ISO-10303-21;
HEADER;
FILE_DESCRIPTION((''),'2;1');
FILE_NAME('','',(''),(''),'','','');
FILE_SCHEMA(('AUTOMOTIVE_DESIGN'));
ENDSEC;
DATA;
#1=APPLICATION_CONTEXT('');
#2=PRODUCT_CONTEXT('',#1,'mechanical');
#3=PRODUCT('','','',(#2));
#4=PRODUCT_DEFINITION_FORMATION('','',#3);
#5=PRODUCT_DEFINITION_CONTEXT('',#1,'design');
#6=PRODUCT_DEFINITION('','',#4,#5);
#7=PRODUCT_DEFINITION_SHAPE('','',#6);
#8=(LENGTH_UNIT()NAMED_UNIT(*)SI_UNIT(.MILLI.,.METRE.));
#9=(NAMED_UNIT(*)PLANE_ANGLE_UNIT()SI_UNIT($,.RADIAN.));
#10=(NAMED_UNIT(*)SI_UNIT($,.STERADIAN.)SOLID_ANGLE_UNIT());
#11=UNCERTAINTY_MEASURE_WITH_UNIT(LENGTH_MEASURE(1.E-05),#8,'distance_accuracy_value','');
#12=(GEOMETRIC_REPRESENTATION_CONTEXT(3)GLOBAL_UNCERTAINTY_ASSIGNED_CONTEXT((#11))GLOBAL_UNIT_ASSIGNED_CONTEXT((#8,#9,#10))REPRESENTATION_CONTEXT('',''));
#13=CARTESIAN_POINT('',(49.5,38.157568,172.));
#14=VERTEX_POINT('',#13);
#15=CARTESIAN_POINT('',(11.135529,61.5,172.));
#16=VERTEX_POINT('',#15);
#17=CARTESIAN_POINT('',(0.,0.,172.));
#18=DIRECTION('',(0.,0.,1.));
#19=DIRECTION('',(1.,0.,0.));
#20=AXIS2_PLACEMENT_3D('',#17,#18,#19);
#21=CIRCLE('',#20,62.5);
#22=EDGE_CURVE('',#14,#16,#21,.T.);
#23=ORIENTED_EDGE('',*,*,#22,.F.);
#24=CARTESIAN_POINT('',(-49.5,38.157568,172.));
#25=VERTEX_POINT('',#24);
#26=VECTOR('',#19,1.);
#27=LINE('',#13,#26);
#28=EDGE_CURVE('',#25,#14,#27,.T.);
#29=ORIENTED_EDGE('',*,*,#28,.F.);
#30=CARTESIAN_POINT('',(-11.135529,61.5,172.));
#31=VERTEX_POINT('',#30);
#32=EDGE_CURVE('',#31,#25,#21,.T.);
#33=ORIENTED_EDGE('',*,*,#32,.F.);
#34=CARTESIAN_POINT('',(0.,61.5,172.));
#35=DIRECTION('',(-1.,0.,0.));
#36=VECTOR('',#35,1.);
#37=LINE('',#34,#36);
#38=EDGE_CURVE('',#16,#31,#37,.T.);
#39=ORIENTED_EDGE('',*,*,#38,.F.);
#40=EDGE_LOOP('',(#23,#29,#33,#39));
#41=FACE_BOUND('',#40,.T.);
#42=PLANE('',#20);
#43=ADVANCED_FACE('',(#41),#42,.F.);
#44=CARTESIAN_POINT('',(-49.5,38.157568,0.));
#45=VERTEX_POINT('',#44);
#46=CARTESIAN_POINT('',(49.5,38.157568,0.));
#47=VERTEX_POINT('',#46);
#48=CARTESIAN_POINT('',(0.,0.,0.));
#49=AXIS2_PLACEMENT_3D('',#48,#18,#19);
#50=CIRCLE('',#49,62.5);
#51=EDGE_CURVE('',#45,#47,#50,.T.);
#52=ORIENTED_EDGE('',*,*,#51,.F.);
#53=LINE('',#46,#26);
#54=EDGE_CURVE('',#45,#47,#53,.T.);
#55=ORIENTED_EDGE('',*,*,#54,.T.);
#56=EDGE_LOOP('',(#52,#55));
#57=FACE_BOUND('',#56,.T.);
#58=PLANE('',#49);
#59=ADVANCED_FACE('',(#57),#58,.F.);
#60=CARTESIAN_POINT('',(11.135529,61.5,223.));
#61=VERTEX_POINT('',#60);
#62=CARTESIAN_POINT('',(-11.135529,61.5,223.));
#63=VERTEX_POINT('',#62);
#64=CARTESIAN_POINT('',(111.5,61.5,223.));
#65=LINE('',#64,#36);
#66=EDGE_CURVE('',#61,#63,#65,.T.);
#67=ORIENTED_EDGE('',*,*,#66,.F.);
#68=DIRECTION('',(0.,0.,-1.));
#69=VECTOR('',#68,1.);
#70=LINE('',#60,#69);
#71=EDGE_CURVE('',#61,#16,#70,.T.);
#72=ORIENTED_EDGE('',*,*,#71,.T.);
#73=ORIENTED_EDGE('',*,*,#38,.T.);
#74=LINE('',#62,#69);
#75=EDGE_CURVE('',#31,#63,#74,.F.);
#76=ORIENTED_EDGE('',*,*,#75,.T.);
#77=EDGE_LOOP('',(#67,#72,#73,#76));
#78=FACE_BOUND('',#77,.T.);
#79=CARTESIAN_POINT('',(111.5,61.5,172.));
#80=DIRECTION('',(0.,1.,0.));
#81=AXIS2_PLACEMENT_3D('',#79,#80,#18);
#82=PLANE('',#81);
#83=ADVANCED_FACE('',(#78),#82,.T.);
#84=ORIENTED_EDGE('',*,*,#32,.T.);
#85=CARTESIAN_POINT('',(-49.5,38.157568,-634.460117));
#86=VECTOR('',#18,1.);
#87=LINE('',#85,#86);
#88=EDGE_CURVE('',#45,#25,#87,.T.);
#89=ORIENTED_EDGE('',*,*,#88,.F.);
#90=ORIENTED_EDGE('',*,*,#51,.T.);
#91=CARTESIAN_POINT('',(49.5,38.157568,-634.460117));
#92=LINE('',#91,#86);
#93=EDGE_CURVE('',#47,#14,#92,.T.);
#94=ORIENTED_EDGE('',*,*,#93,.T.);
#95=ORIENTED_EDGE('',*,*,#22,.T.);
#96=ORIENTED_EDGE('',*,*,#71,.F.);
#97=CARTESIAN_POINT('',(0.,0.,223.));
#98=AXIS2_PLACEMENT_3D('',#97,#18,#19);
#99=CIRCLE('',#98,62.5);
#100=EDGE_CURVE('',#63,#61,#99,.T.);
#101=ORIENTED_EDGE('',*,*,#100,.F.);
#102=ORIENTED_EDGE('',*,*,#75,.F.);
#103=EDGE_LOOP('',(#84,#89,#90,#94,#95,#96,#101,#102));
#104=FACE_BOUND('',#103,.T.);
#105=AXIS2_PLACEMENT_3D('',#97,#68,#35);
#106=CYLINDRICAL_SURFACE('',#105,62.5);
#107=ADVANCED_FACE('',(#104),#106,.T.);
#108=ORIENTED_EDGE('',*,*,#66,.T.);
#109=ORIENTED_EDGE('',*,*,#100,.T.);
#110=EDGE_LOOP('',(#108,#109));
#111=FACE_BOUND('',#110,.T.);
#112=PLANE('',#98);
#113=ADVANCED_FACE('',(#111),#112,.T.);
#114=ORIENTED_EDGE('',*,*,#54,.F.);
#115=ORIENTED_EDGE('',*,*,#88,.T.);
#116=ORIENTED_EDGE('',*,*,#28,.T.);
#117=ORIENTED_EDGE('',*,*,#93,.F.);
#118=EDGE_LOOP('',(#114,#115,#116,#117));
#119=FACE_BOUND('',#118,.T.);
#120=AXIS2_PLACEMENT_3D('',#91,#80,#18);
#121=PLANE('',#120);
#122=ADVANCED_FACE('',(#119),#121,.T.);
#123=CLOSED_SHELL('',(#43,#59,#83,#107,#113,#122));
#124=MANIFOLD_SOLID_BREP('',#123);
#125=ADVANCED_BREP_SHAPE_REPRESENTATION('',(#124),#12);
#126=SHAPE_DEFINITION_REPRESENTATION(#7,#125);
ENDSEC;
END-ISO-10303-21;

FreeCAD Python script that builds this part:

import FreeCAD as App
import Part
import Sketcher

V = App.Vector
Q = App.Units.Quantity


def add_polygon(sketch, points):
    """Adds a closed chain of lines whose ends are joined by coincident constraints."""
    first, n = sketch.GeometryCount, len(points)
    for a, b in zip(points, points[1:] + points[:1]):
        sketch.addGeometry(Part.LineSegment(App.Vector(*a, 0), App.Vector(*b, 0)), False)
    for i in range(n):
        sketch.addConstraint(Sketcher.Constraint("Coincident", first + i, 2, first + (i + 1) % n, 1))

doc = App.newDocument("Part")
body = doc.addObject("PartDesign::Body", "Body")

# Sketch on XY plane
sketch1 = body.newObject("Sketcher::SketchObject", "Sketch")
sketch1.AttachmentSupport = (doc.getObject("XY_Plane"), [""])
sketch1.MapMode = "FlatFace"
sketch1.addGeometry(Part.Circle(V(0, 0, 0), V(0, 0, 1), 62), False)
sketch1.addConstraint([
    Sketcher.Constraint("Coincident", 0, 3, -1, 1),
    Sketcher.Constraint("Diameter", 0, Q("125 mm")),
])
pad1 = body.newObject("PartDesign::Pad", "Pad")
pad1.Profile = sketch1
pad1.Length = 223

# Sketch on XY plane
sketch2 = body.newObject("Sketcher::SketchObject", "Sketch001")
sketch2.AttachmentSupport = (doc.getObject("XY_Plane"), [""])
sketch2.MapMode = "FlatFace"
add_polygon(sketch2, [(361, 38), (-361, 38), (-361, 660), (361, 660)])  # lines 0-3
sketch2.addConstraint([
    Sketcher.Constraint("Horizontal", 0),
    Sketcher.Constraint("Vertical", 1),
    Sketcher.Constraint("Horizontal", 2),
    Sketcher.Constraint("Vertical", 3),
    Sketcher.Constraint("DistanceX", 0, 2, 0, 1, Q("721.341378 mm")),
    Sketcher.Constraint("DistanceY", 1, 1, 1, 2, Q("622.341378 mm")),
    Sketcher.Constraint("DistanceX", 0, 2, -1, 1, Q("360.670689 mm")),
    Sketcher.Constraint("DistanceY", -1, 1, 0, 2, Q("38.157568 mm")),
])
pocket1 = body.newObject("PartDesign::Pocket", "Pocket")
pocket1.Profile = sketch2
pocket1.Type = "TwoLengths"
pocket1.Length = 240.878094
pocket1.Length2 = 172

# Sketch on YZ plane
sketch3 = body.newObject("Sketcher::SketchObject", "Sketch002")
sketch3.AttachmentSupport = (doc.getObject("YZ_Plane"), [""])
sketch3.MapMode = "FlatFace"
sketch3.AttachmentOffset = App.Placement(V(0, 0, -62.5), App.Rotation())
add_polygon(sketch3, [(62.5, 223), (61.5, 223), (61.5, 172), (62.5, 172)])  # lines 0-3
sketch3.addConstraint([
    Sketcher.Constraint("Horizontal", 0),
    Sketcher.Constraint("Vertical", 1),
    Sketcher.Constraint("Horizontal", 2),
    Sketcher.Constraint("Vertical", 3),
    Sketcher.Constraint("DistanceX", 0, 2, 0, 1, Q("1 mm")),
    Sketcher.Constraint("DistanceY", 1, 2, 1, 1, Q("51 mm")),
    Sketcher.Constraint("DistanceY", -1, 1, 0, 2, Q("223 mm")),
    Sketcher.Constraint("DistanceX", -1, 1, 0, 2, Q("61.5 mm")),
])
pocket2 = body.newObject("PartDesign::Pocket", "Pocket001")
pocket2.Profile = sketch3
pocket2.Length = 174
pocket2.Reversed = True

doc.recompute()
